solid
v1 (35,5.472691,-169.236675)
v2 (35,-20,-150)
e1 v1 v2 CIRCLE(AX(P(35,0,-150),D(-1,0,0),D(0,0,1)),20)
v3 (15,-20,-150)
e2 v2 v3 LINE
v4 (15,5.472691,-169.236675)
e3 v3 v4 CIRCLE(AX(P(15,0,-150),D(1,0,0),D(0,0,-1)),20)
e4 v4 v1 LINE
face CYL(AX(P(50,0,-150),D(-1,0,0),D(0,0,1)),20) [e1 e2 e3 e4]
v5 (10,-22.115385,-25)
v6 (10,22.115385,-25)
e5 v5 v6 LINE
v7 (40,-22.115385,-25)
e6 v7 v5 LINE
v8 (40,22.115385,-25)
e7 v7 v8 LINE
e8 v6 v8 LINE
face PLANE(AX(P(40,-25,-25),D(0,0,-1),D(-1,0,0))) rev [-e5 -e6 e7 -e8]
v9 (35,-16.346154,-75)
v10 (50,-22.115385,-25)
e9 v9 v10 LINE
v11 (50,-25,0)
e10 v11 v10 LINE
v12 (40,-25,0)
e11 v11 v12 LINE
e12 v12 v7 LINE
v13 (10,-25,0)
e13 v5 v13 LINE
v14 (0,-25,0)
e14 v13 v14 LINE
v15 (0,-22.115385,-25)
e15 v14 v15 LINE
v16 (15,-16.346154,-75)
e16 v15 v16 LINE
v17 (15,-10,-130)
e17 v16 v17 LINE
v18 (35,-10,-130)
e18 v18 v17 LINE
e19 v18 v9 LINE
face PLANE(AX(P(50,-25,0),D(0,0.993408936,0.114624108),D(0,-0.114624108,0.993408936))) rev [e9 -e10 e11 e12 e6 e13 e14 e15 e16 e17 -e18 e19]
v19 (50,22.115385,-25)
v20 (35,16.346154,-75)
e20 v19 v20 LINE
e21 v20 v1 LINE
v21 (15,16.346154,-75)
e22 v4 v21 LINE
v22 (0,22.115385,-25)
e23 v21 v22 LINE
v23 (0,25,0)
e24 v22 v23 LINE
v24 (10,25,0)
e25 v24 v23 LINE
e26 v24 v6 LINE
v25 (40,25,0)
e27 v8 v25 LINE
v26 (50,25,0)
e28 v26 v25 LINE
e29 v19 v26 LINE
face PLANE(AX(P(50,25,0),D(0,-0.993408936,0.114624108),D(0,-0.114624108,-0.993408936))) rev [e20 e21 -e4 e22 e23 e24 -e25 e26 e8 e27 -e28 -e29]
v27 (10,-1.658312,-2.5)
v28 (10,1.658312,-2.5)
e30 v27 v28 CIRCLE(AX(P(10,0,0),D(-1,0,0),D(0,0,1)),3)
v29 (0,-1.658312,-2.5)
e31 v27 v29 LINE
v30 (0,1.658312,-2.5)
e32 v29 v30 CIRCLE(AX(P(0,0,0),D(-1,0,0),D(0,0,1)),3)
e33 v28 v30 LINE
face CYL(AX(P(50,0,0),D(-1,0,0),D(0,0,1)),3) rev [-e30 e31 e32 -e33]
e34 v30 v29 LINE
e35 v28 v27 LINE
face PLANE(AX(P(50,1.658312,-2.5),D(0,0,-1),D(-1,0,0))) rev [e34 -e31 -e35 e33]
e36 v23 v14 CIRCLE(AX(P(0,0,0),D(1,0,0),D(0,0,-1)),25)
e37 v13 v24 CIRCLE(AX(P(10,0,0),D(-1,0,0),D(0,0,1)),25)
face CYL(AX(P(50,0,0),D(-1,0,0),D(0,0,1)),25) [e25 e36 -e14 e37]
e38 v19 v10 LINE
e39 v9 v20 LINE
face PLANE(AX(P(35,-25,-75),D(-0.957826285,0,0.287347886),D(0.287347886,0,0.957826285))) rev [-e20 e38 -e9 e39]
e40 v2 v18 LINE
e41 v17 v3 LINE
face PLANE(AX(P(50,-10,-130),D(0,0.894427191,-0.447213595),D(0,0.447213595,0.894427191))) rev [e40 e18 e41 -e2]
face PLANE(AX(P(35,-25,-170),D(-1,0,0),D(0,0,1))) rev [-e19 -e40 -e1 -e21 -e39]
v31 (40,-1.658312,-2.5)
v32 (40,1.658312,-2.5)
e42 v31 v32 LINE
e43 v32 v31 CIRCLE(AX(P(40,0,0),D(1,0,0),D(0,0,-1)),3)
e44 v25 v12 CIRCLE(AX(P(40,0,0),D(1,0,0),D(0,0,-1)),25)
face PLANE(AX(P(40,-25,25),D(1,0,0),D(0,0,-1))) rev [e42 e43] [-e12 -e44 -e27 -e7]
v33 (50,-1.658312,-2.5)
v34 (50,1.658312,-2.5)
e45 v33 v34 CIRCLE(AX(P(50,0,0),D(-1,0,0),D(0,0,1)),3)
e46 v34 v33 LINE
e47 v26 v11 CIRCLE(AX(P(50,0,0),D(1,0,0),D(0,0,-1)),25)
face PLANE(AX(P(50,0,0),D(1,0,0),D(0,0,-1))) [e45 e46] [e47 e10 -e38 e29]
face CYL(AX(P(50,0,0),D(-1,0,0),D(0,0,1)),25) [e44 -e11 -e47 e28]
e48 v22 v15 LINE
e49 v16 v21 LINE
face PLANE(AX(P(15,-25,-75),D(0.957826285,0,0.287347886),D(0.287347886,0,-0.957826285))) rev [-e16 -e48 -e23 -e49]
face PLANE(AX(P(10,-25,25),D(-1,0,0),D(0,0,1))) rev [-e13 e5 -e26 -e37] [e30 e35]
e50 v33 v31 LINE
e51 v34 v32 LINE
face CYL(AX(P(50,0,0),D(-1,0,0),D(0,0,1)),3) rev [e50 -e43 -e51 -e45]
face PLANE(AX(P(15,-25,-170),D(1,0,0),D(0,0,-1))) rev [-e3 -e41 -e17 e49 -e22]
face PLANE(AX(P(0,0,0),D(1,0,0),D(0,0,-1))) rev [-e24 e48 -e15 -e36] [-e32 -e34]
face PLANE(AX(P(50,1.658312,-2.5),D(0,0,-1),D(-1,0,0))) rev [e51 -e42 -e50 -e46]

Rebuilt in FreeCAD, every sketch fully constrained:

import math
import FreeCAD as App
import Part
import Sketcher
from FreeCAD import Vector

doc = App.newDocument("Part")
body = doc.addObject("PartDesign::Body", "Body")

# Sketch on YZ plane
sketch1 = body.newObject("Sketcher::SketchObject", "Sketch")
sketch1.AttachmentSupport = (doc.getObject("YZ_Plane"), [""])
sketch1.MapMode = "FlatFace"
sketch1.addGeometry([
    Part.LineSegment(Vector(10, -130, 0), Vector(25, 0, 0)),  # 0
    Part.ArcOfCircle(Part.Circle(Vector(0, 0, 0), Vector(0, 0, 1), 25), math.radians(0), math.radians(180)),  # 1
    Part.LineSegment(Vector(-25, 0, 0), Vector(-10, -130, 0)),  # 2
    Part.LineSegment(Vector(-10, -130, 0), Vector(-20, -150, 0)),  # 3
    Part.ArcOfCircle(Part.Circle(Vector(0, -150, 0), Vector(0, 0, 1), 20), math.radians(180), math.radians(360)),  # 4
    Part.LineSegment(Vector(20, -150, 0), Vector(10, -130, 0)),  # 5
], False)
sketch1.addConstraint([
    Sketcher.Constraint("Coincident", 0, 2, 1, 1),
    Sketcher.Constraint("Coincident", 1, 2, 2, 1),
    Sketcher.Constraint("Coincident", 2, 2, 3, 1),
    Sketcher.Constraint("Coincident", 3, 2, 4, 1),
    Sketcher.Constraint("Coincident", 4, 2, 5, 1),
    Sketcher.Constraint("Coincident", 5, 2, 0, 1),
    Sketcher.Constraint("Coincident", 1, 3, -1, 1),
    Sketcher.Constraint("Symmetric", 3, 2, 4, 2, -2),
    Sketcher.Constraint("Symmetric", 2, 2, 5, 2, -2),
    Sketcher.Constraint("PointOnObject", 0, 2, -1),
    Sketcher.Constraint("PointOnObject", 1, 2, -1),
    Sketcher.Constraint("Horizontal", 4, 3, 3, 2),
    Sketcher.Constraint("Radius", 1, 25.0),
    Sketcher.Constraint("Radius", 4, 20.0),
    Sketcher.Constraint("DistanceY", 4, 3, -1, 1, 150.0),
    Sketcher.Constraint("DistanceX", 2, 2, -1, 1, 10.0),
    Sketcher.Constraint("DistanceY", 2, 2, -1, 1, 130.0),
])
pad1 = body.newObject("PartDesign::Pad", "Pad")
pad1.Profile = sketch1
pad1.Length = 50

# Sketch on XZ plane
sketch2 = body.newObject("Sketcher::SketchObject", "Sketch001")
sketch2.AttachmentSupport = (doc.getObject("XZ_Plane"), [""])
sketch2.MapMode = "FlatFace"
sketch2.addGeometry([
    Part.LineSegment(Vector(15, -75, 0), Vector(15, -170, 0)),  # 0
    Part.LineSegment(Vector(15, -170, 0), Vector(35, -170, 0)),  # 1
    Part.LineSegment(Vector(35, -170, 0), Vector(35, -75, 0)),  # 2
    Part.LineSegment(Vector(35, -75, 0), Vector(50, -25, 0)),  # 3
    Part.LineSegment(Vector(50, -25, 0), Vector(98, -25, 0)),  # 4
    Part.LineSegment(Vector(98, -25, 0), Vector(98, -232, 0)),  # 5
    Part.LineSegment(Vector(98, -232, 0), Vector(-45, -232, 0)),  # 6
    Part.LineSegment(Vector(-45, -232, 0), Vector(-45, -25, 0)),  # 7
    Part.LineSegment(Vector(-45, -25, 0), Vector(0, -25, 0)),  # 8
    Part.LineSegment(Vector(0, -25, 0), Vector(15, -75, 0)),  # 9
], False)
sketch2.addConstraint([
    Sketcher.Constraint("Coincident", 0, 2, 1, 1),
    Sketcher.Constraint("Coincident", 1, 2, 2, 1),
    Sketcher.Constraint("Coincident", 2, 2, 3, 1),
    Sketcher.Constraint("Coincident", 3, 2, 4, 1),
    Sketcher.Constraint("Coincident", 4, 2, 5, 1),
    Sketcher.Constraint("Coincident", 5, 2, 6, 1),
    Sketcher.Constraint("Coincident", 6, 2, 7, 1),
    Sketcher.Constraint("Coincident", 7, 2, 8, 1),
    Sketcher.Constraint("Coincident", 8, 2, 9, 1),
    Sketcher.Constraint("Coincident", 9, 2, 0, 1),
    Sketcher.Constraint("Vertical", 0),
    Sketcher.Constraint("Horizontal", 1),
    Sketcher.Constraint("Vertical", 2),
    Sketcher.Constraint("Horizontal", 4),
    Sketcher.Constraint("Vertical", 5),
    Sketcher.Constraint("Horizontal", 6),
    Sketcher.Constraint("Vertical", 7),
    Sketcher.Constraint("Horizontal", 8),
    Sketcher.Constraint("PointOnObject", 8, 2, -2),
    Sketcher.Constraint("Horizontal", 4, 2, 7, 2),
    Sketcher.Constraint("Horizontal", 2, 2, 9, 2),
    Sketcher.Constraint("Equal", 3, 9),
    Sketcher.Constraint("DistanceX", 1, 1, 1, 2, 20.0),
    Sketcher.Constraint("DistanceY", 0, 2, 0, 1, 95.0),
    Sketcher.Constraint("DistanceX", -1, 1, 0, 2, 15.0),
    Sketcher.Constraint("DistanceY", 0, 2, -1, 1, 170.0),
    Sketcher.Constraint("DistanceY", 3, 2, -1, 1, 25.0),
    Sketcher.Constraint("DistanceX", 4, 1, 4, 2, 47.661485),
    Sketcher.Constraint("DistanceX", 6, 2, 6, 1, 142.810737),
    Sketcher.Constraint("DistanceY", 5, 2, 5, 1, 206.988814),
])
pocket1 = body.newObject("PartDesign::Pocket", "Pocket")
pocket1.Profile = sketch2
pocket1.Type = "ThroughAll"
pocket1.Midplane = True

# Sketch on XZ plane
sketch3 = body.newObject("Sketcher::SketchObject", "Sketch002")
sketch3.AttachmentSupport = (doc.getObject("XZ_Plane"), [""])
sketch3.MapMode = "FlatFace"
sketch3.addGeometry([
    Part.LineSegment(Vector(10, -25, 0), Vector(10, 25, 0)),
    Part.LineSegment(Vector(10, 25, 0), Vector(40, 25, 0)),
    Part.LineSegment(Vector(40, 25, 0), Vector(40, -25, 0)),
    Part.LineSegment(Vector(40, -25, 0), Vector(10, -25, 0)),
], False)
sketch3.addConstraint([
    Sketcher.Constraint("Coincident", 0, 2, 1, 1),
    Sketcher.Constraint("Coincident", 1, 2, 2, 1),
    Sketcher.Constraint("Coincident", 2, 2, 3, 1),
    Sketcher.Constraint("Coincident", 3, 2, 0, 1),
    Sketcher.Constraint("Vertical", 0),
    Sketcher.Constraint("Horizontal", 1),
    Sketcher.Constraint("Vertical", 2),
    Sketcher.Constraint("Horizontal", 3),
    Sketcher.Constraint("DistanceX", 1, 1, 1, 2, 30.0),
    Sketcher.Constraint("DistanceY", 0, 1, 0, 2, 50.0),
    Sketcher.Constraint("DistanceX", -1, 1, 0, 2, 10.0),
    Sketcher.Constraint("DistanceY", -1, 1, 0, 2, 25.0),
])
pocket2 = body.newObject("PartDesign::Pocket", "Pocket001")
pocket2.Profile = sketch3
pocket2.Type = "ThroughAll"
pocket2.Midplane = True

# Sketch on YZ plane
sketch4 = body.newObject("Sketcher::SketchObject", "Sketch003")
sketch4.AttachmentSupport = (doc.getObject("YZ_Plane"), [""])
sketch4.MapMode = "FlatFace"
sketch4.AttachmentOffset = App.Placement(Vector(0, 0, 15), App.Rotation())
sketch4.addGeometry([
    Part.LineSegment(Vector(3.176615, -189.136007, 0), Vector(10, -130, 0)),
    Part.LineSegment(Vector(10, -130, 0), Vector(25.246661, -130.171893, 0)),
    Part.LineSegment(Vector(25.246661, -130.171893, 0), Vector(31.687839, -191.554152, 0)),
    Part.LineSegment(Vector(31.687839, -191.554152, 0), Vector(3.176615, -189.136007, 0)),
], False)
sketch4.addConstraint([
    Sketcher.Constraint("Coincident", 0, 2, 1, 1),
    Sketcher.Constraint("Coincident", 1, 2, 2, 1),
    Sketcher.Constraint("Coincident", 2, 2, 3, 1),
    Sketcher.Constraint("Coincident", 3, 2, 0, 1),
    Sketcher.Constraint("DistanceX", -1, 1, 0, 2, 10.0),
    Sketcher.Constraint("DistanceY", 0, 2, -1, 1, 130.0),
    Sketcher.Constraint("Distance", 1, 15.24763),
    Sketcher.Constraint("DistanceX", -1, 1, 1, 2, 25.246661),
    Sketcher.Constraint("DistanceX", -1, 1, 2, 2, 31.687839),
    Sketcher.Constraint("DistanceY", 2, 2, 1, 2, 61.382259),
    Sketcher.Constraint("Distance", 0, 59.528362),
    Sketcher.Constraint("Distance", 3, 28.613587),
])
pocket3 = body.newObject("PartDesign::Pocket", "Pocket002")
pocket3.Profile = sketch4
pocket3.Type = "ThroughAll"
pocket3.Midplane = True

# Sketch on YZ plane
sketch5 = body.newObject("Sketcher::SketchObject", "Sketch004")
sketch5.AttachmentSupport = (doc.getObject("YZ_Plane"), [""])
sketch5.MapMode = "FlatFace"
sketch5.addGeometry([
    Part.LineSegment(Vector(1.7, -2.5, 0), Vector(-1.7, -2.5, 0)),
    Part.ArcOfCircle(Part.Circle(Vector(0, 0, 0), Vector(0, 0, 1), 3), math.radians(-56), math.radians(236)),
], False)
sketch5.addConstraint([
    Sketcher.Constraint("Coincident", 0, 1, 1, 1),
    Sketcher.Constraint("Coincident", 1, 2, 0, 2),
    Sketcher.Constraint("Horizontal", 0),
    Sketcher.Constraint("Coincident", 1, 3, -1, 1),
    Sketcher.Constraint("Radius", 1, 3.0),
    Sketcher.Constraint("DistanceY", 0, 1, -1, 1, 2.5),
])
pocket4 = body.newObject("PartDesign::Pocket", "Pocket003")
pocket4.Profile = sketch5
pocket4.Type = "ThroughAll"
pocket4.Midplane = True

doc.recompute()
